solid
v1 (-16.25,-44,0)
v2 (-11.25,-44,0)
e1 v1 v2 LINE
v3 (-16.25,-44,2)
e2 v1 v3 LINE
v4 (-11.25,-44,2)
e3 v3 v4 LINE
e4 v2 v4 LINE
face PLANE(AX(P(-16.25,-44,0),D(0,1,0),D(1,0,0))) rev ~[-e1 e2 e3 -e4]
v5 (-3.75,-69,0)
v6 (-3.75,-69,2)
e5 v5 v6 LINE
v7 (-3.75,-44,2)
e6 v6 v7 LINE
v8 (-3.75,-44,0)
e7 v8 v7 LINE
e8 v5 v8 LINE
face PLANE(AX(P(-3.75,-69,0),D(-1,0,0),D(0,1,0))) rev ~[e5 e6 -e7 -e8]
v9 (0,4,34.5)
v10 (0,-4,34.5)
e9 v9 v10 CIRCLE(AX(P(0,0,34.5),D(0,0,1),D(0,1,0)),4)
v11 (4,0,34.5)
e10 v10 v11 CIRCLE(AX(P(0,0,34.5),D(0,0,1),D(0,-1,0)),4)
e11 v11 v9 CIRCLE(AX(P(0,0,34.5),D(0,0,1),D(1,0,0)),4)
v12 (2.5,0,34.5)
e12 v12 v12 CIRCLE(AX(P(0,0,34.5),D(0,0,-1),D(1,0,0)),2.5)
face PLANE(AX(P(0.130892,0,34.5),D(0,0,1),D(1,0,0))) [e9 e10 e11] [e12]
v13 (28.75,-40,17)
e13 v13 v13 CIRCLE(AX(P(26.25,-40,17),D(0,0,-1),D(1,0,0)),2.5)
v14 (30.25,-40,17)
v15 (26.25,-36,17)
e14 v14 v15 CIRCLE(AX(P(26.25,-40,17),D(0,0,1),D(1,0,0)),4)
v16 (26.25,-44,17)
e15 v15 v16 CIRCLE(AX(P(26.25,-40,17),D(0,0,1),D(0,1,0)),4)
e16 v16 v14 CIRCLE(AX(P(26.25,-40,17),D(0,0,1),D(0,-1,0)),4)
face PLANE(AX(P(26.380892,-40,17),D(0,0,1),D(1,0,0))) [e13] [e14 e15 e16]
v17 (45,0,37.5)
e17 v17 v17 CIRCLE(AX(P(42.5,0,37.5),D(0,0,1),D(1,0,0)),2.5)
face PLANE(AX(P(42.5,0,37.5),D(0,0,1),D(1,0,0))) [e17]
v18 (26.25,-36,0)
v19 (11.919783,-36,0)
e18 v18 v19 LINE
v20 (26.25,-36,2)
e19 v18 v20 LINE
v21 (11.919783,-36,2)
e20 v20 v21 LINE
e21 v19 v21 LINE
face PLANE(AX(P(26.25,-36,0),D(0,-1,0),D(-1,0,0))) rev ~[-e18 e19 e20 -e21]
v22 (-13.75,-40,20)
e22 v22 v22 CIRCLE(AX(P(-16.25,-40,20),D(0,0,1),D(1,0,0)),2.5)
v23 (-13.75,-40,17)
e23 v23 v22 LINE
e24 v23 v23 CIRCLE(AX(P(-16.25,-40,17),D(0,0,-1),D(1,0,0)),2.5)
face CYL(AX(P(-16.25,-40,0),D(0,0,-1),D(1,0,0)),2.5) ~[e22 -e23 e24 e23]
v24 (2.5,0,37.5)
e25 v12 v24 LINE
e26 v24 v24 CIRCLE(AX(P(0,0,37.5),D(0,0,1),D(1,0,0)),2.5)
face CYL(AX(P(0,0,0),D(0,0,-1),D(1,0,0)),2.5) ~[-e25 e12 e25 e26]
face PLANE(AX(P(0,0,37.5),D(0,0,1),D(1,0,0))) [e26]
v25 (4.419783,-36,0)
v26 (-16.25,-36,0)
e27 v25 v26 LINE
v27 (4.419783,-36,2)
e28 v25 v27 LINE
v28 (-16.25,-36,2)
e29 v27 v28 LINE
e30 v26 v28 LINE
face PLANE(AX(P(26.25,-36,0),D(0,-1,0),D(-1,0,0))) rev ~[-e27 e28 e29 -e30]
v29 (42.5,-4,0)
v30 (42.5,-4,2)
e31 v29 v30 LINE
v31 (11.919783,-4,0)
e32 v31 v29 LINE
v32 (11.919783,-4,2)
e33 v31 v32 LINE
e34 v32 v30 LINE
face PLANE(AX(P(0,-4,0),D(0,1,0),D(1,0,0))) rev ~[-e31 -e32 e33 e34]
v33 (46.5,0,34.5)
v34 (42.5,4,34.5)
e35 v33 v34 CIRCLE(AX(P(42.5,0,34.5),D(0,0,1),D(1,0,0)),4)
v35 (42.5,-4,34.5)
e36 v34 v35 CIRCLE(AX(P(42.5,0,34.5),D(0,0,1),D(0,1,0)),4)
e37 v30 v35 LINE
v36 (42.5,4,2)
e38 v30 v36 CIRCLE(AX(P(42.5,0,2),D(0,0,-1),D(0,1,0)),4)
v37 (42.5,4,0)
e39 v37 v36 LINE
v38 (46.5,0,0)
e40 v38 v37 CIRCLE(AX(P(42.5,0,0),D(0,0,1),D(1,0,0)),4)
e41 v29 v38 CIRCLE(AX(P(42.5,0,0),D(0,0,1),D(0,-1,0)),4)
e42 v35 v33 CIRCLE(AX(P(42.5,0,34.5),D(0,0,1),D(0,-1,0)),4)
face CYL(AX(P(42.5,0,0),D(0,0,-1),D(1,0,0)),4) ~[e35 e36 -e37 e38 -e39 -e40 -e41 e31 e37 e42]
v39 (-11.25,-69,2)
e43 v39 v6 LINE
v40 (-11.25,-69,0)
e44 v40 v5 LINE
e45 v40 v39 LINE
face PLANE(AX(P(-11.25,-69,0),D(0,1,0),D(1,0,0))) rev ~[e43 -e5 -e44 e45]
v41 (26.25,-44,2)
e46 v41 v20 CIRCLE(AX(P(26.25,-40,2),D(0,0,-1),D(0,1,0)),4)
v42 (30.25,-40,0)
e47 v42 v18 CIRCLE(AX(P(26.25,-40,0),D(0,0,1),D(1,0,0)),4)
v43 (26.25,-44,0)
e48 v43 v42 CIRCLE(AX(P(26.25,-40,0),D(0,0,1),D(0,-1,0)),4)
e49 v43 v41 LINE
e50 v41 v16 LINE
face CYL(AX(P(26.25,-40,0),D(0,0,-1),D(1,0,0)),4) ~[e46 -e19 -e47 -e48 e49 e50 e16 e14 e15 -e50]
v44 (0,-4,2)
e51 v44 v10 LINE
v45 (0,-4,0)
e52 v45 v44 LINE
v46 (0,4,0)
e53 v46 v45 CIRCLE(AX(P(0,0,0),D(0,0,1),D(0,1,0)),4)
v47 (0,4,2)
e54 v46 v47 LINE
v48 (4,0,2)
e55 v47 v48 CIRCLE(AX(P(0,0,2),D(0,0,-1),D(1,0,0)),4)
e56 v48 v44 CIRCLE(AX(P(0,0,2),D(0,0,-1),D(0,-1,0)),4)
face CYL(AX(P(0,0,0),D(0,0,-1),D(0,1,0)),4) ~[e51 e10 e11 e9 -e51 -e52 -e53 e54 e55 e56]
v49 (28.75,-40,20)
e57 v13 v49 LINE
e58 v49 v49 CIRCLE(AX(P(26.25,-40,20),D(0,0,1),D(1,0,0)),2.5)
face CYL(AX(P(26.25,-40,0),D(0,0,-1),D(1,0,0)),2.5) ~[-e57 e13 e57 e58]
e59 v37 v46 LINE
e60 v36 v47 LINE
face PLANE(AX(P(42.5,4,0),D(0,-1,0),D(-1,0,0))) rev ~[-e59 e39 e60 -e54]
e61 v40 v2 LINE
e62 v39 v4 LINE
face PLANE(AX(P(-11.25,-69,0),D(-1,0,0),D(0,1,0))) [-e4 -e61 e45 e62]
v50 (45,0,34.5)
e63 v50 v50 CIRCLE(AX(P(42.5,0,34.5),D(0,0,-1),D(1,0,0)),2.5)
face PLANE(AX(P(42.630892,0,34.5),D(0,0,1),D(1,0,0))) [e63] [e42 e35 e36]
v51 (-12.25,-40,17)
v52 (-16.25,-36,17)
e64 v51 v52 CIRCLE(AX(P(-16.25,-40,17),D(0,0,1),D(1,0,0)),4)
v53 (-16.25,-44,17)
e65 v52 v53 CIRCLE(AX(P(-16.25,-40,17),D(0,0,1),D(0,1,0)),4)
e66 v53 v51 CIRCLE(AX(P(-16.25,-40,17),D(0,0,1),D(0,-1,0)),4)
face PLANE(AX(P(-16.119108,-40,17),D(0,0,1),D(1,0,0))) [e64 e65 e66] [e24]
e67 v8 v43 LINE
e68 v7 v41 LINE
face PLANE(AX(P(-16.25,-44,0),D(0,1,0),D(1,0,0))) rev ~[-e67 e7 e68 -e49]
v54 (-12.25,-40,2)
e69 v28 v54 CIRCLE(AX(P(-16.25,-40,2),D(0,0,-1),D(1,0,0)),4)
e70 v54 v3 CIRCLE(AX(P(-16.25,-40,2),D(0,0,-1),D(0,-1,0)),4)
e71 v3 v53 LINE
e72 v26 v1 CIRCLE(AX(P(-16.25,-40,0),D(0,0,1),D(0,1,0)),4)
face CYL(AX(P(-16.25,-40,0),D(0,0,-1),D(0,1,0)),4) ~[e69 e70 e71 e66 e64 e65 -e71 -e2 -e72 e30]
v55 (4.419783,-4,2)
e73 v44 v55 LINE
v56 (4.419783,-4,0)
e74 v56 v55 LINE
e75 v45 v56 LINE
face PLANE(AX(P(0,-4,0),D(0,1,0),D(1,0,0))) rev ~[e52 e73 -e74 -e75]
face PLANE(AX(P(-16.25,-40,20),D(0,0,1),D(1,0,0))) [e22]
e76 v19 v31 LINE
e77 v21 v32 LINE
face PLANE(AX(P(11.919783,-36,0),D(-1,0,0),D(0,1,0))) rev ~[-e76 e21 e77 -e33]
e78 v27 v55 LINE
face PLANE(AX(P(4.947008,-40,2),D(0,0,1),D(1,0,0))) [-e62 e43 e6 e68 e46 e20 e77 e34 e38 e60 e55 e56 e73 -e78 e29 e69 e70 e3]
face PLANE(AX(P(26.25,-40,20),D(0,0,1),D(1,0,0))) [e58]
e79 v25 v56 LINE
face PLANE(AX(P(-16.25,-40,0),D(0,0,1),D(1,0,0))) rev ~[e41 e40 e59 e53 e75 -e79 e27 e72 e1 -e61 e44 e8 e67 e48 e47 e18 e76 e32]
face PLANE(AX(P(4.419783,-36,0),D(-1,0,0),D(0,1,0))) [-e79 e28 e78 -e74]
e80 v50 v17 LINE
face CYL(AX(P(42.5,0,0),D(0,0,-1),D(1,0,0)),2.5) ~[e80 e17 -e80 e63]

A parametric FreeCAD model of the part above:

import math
import FreeCAD as App
import Part
import Sketcher
from FreeCAD import Vector
Q = App.Units.Quantity


def add_polygon(sketch, points):
    """Adds a closed chain of lines whose ends are joined by coincident constraints."""
    first, n = sketch.GeometryCount, len(points)
    for a, b in zip(points, points[1:] + points[:1]):
        sketch.addGeometry(Part.LineSegment(App.Vector(*a, 0), App.Vector(*b, 0)), False)
    for i in range(n):
        sketch.addConstraint(Sketcher.Constraint("Coincident", first + i, 2, first + (i + 1) % n, 1))

doc = App.newDocument("Part")
params = doc.addObject("Spreadsheet::Sheet", "Params")
for row, (alias, value) in enumerate([
    ("sketch1_radius", "4 mm"),
    ("sketch1_width", "42.5 mm"),
    ("pad1_length", "2 mm"),
    ("sketch2_radius", "4 mm"),
    ("pad2_length", "34.5 mm"),
    ("sketch3_diameter", "5 mm"),
    ("pad3_length", "37.5 mm"),
    ("sketch4_radius", "4 mm"),
    ("sketch4_width", "42.5 mm"),
    ("pad4_length", "2 mm"),
    ("sketch5_radius", "4 mm"),
    ("pad5_length", "17 mm"),
    ("sketch6_diameter", "5 mm"),
    ("pad6_length", "20 mm"),
    ("sketch7_height", "32 mm"),
    ("sketch7_height2", "25 mm"),
    ("sketch7_width", "7.5 mm"),
    ("pad7_length", "2 mm"),
], start=1):
    params.set(f"A{row}", alias)
    params.set(f"B{row}", "=" + value)
    params.setAlias(f"B{row}", alias)

body = doc.addObject("PartDesign::Body", "Body")

# Sketch on XY plane
sketch1 = body.newObject("Sketcher::SketchObject", "Sketch")
sketch1.AttachmentSupport = (doc.getObject("XY_Plane"), [""])
sketch1.MapMode = "FlatFace"
sketch1.addGeometry(Part.LineSegment(Vector(0, -4, 0), Vector(42.5, -4, 0)), False)
sketch1.addGeometry(Part.ArcOfCircle(Part.Circle(Vector(42.5, 0, 0), Vector(0, 0, 1), 4), math.radians(-90), math.radians(0)), False)
sketch1.addGeometry(Part.ArcOfCircle(Part.Circle(Vector(42.5, 0, 0), Vector(0, 0, 1), 4), math.radians(0), math.radians(90)), False)
sketch1.addGeometry(Part.LineSegment(Vector(42.5, 4, 0), Vector(0, 4, 0)), False)
sketch1.addGeometry(Part.ArcOfCircle(Part.Circle(Vector(0, 0, 0), Vector(0, 0, 1), 4), math.radians(90), math.radians(270)), False)
sketch1.addConstraint(Sketcher.Constraint("Tangent", 0, 2, 1, 1))
sketch1.addConstraint(Sketcher.Constraint("Tangent", 1, 2, 2, 1))
sketch1.addConstraint(Sketcher.Constraint("Tangent", 2, 2, 3, 1))
sketch1.addConstraint(Sketcher.Constraint("Tangent", 3, 2, 4, 1))
sketch1.addConstraint(Sketcher.Constraint("Tangent", 4, 2, 0, 1))
sketch1.addConstraint(Sketcher.Constraint("Horizontal", 0))
sketch1.addConstraint(Sketcher.Constraint("Horizontal", 3))
sketch1.addConstraint(Sketcher.Constraint("Coincident", 4, 3, -1, 1))
sketch1.addConstraint(Sketcher.Constraint("Equal", 1, 2))
sketch1.addConstraint(Sketcher.Constraint("PointOnObject", 1, 2, -1))
sketch1.addConstraint(Sketcher.Constraint("Radius", 1, Q("4 mm")))
sketch1.addConstraint(Sketcher.Constraint("DistanceX", 0, 1, 0, 2, Q("42.5 mm")))
sketch1.setExpression("Constraints[10]", "Params.sketch1_radius")
sketch1.setExpression("Constraints[11]", "Params.sketch1_width")
pad1 = body.newObject("PartDesign::Pad", "Pad")
pad1.Profile = sketch1
pad1.setExpression("Length", "Params.pad1_length")

# Sketch on XY plane
sketch2 = body.newObject("Sketcher::SketchObject", "Sketch001")
sketch2.AttachmentSupport = (doc.getObject("XY_Plane"), [""])
sketch2.MapMode = "FlatFace"
sketch2.addGeometry(Part.ArcOfCircle(Part.Circle(Vector(0, 0, 0), Vector(0, 0, 1), 4), math.radians(-90), math.radians(0)), False)
sketch2.addGeometry(Part.ArcOfCircle(Part.Circle(Vector(0, 0, 0), Vector(0, 0, 1), 4), math.radians(0), math.radians(90)), False)
sketch2.addGeometry(Part.ArcOfCircle(Part.Circle(Vector(0, 0, 0), Vector(0, 0, 1), 4), math.radians(90), math.radians(270)), False)
sketch2.addGeometry(Part.ArcOfCircle(Part.Circle(Vector(42.5, 0, 0), Vector(0, 0, 1), 4), math.radians(0), math.radians(90)), False)
sketch2.addGeometry(Part.ArcOfCircle(Part.Circle(Vector(42.5, 0, 0), Vector(0, 0, 1), 4), math.radians(90), math.radians(270)), False)
sketch2.addGeometry(Part.ArcOfCircle(Part.Circle(Vector(42.5, 0, 0), Vector(0, 0, 1), 4), math.radians(-90), math.radians(0)), False)
sketch2.addConstraint(Sketcher.Constraint("Tangent", 0, 2, 1, 1))
sketch2.addConstraint(Sketcher.Constraint("Tangent", 1, 2, 2, 1))
sketch2.addConstraint(Sketcher.Constraint("Tangent", 2, 2, 0, 1))
sketch2.addConstraint(Sketcher.Constraint("Tangent", 3, 2, 4, 1))
sketch2.addConstraint(Sketcher.Constraint("Tangent", 4, 2, 5, 1))
sketch2.addConstraint(Sketcher.Constraint("Tangent", 5, 2, 3, 1))
sketch2.addConstraint(Sketcher.Constraint("Coincident", 0, 3, -1, 1))
sketch2.addConstraint(Sketcher.Constraint("Equal", 2, 3))
sketch2.addConstraint(Sketcher.Constraint("Symmetric", 3, 2, 4, 2, -1))
sketch2.addConstraint(Sketcher.Constraint("PointOnObject", 0, 2, -1))
sketch2.addConstraint(Sketcher.Constraint("PointOnObject", 1, 2, -2))
sketch2.addConstraint(Sketcher.Constraint("PointOnObject", 2, 2, -2))
sketch2.addConstraint(Sketcher.Constraint("PointOnObject", 5, 2, -1))
sketch2.addConstraint(Sketcher.Constraint("Vertical", 5, 3, 3, 2))
sketch2.addConstraint(Sketcher.Constraint("Radius", 0, Q("4 mm")))
sketch2.addConstraint(Sketcher.Constraint("DistanceX", -1, 1, 3, 3, Q("42.5 mm")))
sketch2.setExpression("Constraints[14]", "Params.sketch2_radius")
pad2 = body.newObject("PartDesign::Pad", "Pad001")
pad2.Profile = sketch2
pad2.setExpression("Length", "Params.pad2_length")

# Sketch on XY plane
sketch3 = body.newObject("Sketcher::SketchObject", "Sketch002")
sketch3.AttachmentSupport = (doc.getObject("XY_Plane"), [""])
sketch3.MapMode = "FlatFace"
sketch3.addGeometry(Part.Circle(Vector(0, 0, 0), Vector(0, 0, 1), 2.5), False)
sketch3.addGeometry(Part.Circle(Vector(42.5, 0, 0), Vector(0, 0, 1), 2.5), False)
sketch3.addConstraint(Sketcher.Constraint("Coincident", 0, 3, -1, 1))
sketch3.addConstraint(Sketcher.Constraint("Equal", 0, 1))
sketch3.addConstraint(Sketcher.Constraint("PointOnObject", 1, 3, -1))
sketch3.addConstraint(Sketcher.Constraint("Diameter", 0, Q("5 mm")))
sketch3.addConstraint(Sketcher.Constraint("DistanceX", -1, 1, 1, 3, Q("42.5 mm")))
sketch3.setExpression("Constraints[3]", "Params.sketch3_diameter")
pad3 = body.newObject("PartDesign::Pad", "Pad002")
pad3.Profile = sketch3
pad3.setExpression("Length", "Params.pad3_length")
body2 = doc.addObject("PartDesign::Body", "Body001")

# Sketch on XY plane
sketch4 = body2.newObject("Sketcher::SketchObject", "Sketch003")
sketch4.AttachmentSupport = (doc.getObject("XY_Plane001"), [""])
sketch4.MapMode = "FlatFace"
sketch4.addGeometry(Part.LineSegment(Vector(42.5, -36, 0), Vector(0, -36, 0)), False)
sketch4.addGeometry(Part.ArcOfCircle(Part.Circle(Vector(0, -40, 0), Vector(0, 0, 1), 4), math.radians(90), math.radians(270)), False)
sketch4.addGeometry(Part.LineSegment(Vector(0, -44, 0), Vector(42.5, -44, 0)), False)
sketch4.addGeometry(Part.ArcOfCircle(Part.Circle(Vector(42.5, -40, 0), Vector(0, 0, 1), 4), math.radians(-90), math.radians(0)), False)
sketch4.addGeometry(Part.ArcOfCircle(Part.Circle(Vector(42.5, -40, 0), Vector(0, 0, 1), 4), math.radians(0), math.radians(90)), False)
sketch4.addConstraint(Sketcher.Constraint("Tangent", 0, 2, 1, 1))
sketch4.addConstraint(Sketcher.Constraint("Tangent", 1, 2, 2, 1))
sketch4.addConstraint(Sketcher.Constraint("Tangent", 2, 2, 3, 1))
sketch4.addConstraint(Sketcher.Constraint("Tangent", 3, 2, 4, 1))
sketch4.addConstraint(Sketcher.Constraint("Tangent", 4, 2, 0, 1))
sketch4.addConstraint(Sketcher.Constraint("Horizontal", 0))
sketch4.addConstraint(Sketcher.Constraint("Horizontal", 2))
sketch4.addConstraint(Sketcher.Constraint("Equal", 1, 3))
sketch4.addConstraint(Sketcher.Constraint("PointOnObject", 1, 3, -2))
sketch4.addConstraint(Sketcher.Constraint("Horizontal", 4, 3, 3, 2))
sketch4.addConstraint(Sketcher.Constraint("Radius", 1, Q("4 mm")))
sketch4.addConstraint(Sketcher.Constraint("DistanceX", 0, 2, 0, 1, Q("42.5 mm")))
sketch4.addConstraint(Sketcher.Constraint("DistanceY", 1, 3, -1, 1, Q("40 mm")))
sketch4.setExpression("Constraints[10]", "Params.sketch4_radius")
sketch4.setExpression("Constraints[11]", "Params.sketch4_width")
pad4 = body2.newObject("PartDesign::Pad", "Pad003")
pad4.Profile = sketch4
pad4.setExpression("Length", "Params.pad4_length")

# Sketch on XY plane
sketch5 = body2.newObject("Sketcher::SketchObject", "Sketch004")
sketch5.AttachmentSupport = (doc.getObject("XY_Plane001"), [""])
sketch5.MapMode = "FlatFace"
sketch5.addGeometry(Part.ArcOfCircle(Part.Circle(Vector(0, -40, 0), Vector(0, 0, 1), 4), math.radians(-90), math.radians(0)), False)
sketch5.addGeometry(Part.ArcOfCircle(Part.Circle(Vector(0, -40, 0), Vector(0, 0, 1), 4), math.radians(0), math.radians(90)), False)
sketch5.addGeometry(Part.ArcOfCircle(Part.Circle(Vector(0, -40, 0), Vector(0, 0, 1), 4), math.radians(90), math.radians(270)), False)
sketch5.addGeometry(Part.ArcOfCircle(Part.Circle(Vector(42.5, -40, 0), Vector(0, 0, 1), 4), math.radians(0), math.radians(90)), False)
sketch5.addGeometry(Part.ArcOfCircle(Part.Circle(Vector(42.5, -40, 0), Vector(0, 0, 1), 4), math.radians(90), math.radians(270)), False)
sketch5.addGeometry(Part.ArcOfCircle(Part.Circle(Vector(42.5, -40, 0), Vector(0, 0, 1), 4), math.radians(-90), math.radians(0)), False)
sketch5.addConstraint(Sketcher.Constraint("Tangent", 0, 2, 1, 1))
sketch5.addConstraint(Sketcher.Constraint("Tangent", 1, 2, 2, 1))
sketch5.addConstraint(Sketcher.Constraint("Tangent", 2, 2, 0, 1))
sketch5.addConstraint(Sketcher.Constraint("Tangent", 3, 2, 4, 1))
sketch5.addConstraint(Sketcher.Constraint("Tangent", 4, 2, 5, 1))
sketch5.addConstraint(Sketcher.Constraint("Tangent", 5, 2, 3, 1))
sketch5.addConstraint(Sketcher.Constraint("Equal", 2, 3))
sketch5.addConstraint(Sketcher.Constraint("PointOnObject", 0, 3, -2))
sketch5.addConstraint(Sketcher.Constraint("PointOnObject", 1, 2, -2))
sketch5.addConstraint(Sketcher.Constraint("PointOnObject", 2, 2, -2))
sketch5.addConstraint(Sketcher.Constraint("Horizontal", 2, 3, 3, 3))
sketch5.addConstraint(Sketcher.Constraint("Horizontal", 5, 3, 0, 2))
sketch5.addConstraint(Sketcher.Constraint("Horizontal", 0, 2, 5, 2))
sketch5.addConstraint(Sketcher.Constraint("Vertical", 5, 3, 3, 2))
sketch5.addConstraint(Sketcher.Constraint("Vertical", 3, 2, 4, 2))
sketch5.addConstraint(Sketcher.Constraint("Radius", 0, Q("4 mm")))
sketch5.addConstraint(Sketcher.Constraint("DistanceY", 0, 3, -1, 1, Q("40 mm")))
sketch5.addConstraint(Sketcher.Constraint("DistanceX", -1, 1, 3, 3, Q("42.5 mm")))
sketch5.setExpression("Constraints[15]", "Params.sketch5_radius")
pad5 = body2.newObject("PartDesign::Pad", "Pad004")
pad5.Profile = sketch5
pad5.setExpression("Length", "Params.pad5_length")

# Sketch on XY plane
sketch6 = body2.newObject("Sketcher::SketchObject", "Sketch005")
sketch6.AttachmentSupport = (doc.getObject("XY_Plane001"), [""])
sketch6.MapMode = "FlatFace"
sketch6.addGeometry(Part.Circle(Vector(0, -40, 0), Vector(0, 0, 1), 2.5), False)
sketch6.addGeometry(Part.Circle(Vector(42.5, -40, 0), Vector(0, 0, 1), 2.5), False)
sketch6.addConstraint(Sketcher.Constraint("Equal", 0, 1))
sketch6.addConstraint(Sketcher.Constraint("PointOnObject", 0, 3, -2))
sketch6.addConstraint(Sketcher.Constraint("Horizontal", 0, 3, 1, 3))
sketch6.addConstraint(Sketcher.Constraint("Diameter", 0, Q("5 mm")))
sketch6.addConstraint(Sketcher.Constraint("DistanceY", 0, 3, -1, 1, Q("40 mm")))
sketch6.addConstraint(Sketcher.Constraint("DistanceX", -1, 1, 1, 3, Q("42.5 mm")))
sketch6.setExpression("Constraints[3]", "Params.sketch6_diameter")
pad6 = body2.newObject("PartDesign::Pad", "Pad005")
pad6.Profile = sketch6
pad6.setExpression("Length", "Params.pad6_length")
body3 = doc.addObject("PartDesign::Body", "Body002")
doc.recompute()

body2.Placement = App.Placement(Vector(-16.25, 0, 0), App.Rotation(Vector(0, 0, 1), 0))
boolean = body3.newObject("PartDesign::Boolean", "Boolean")
boolean.Type = "Fuse"
boolean.addObjects([body2])
body.AllowCompound = True
doc.recompute()

boolean2 = body.newObject("PartDesign::Boolean", "Boolean001")
boolean2.Type = "Fuse"
boolean2.addObjects([body3])

# Sketch on XY plane
sketch7 = body.newObject("Sketcher::SketchObject", "Sketch006")
sketch7.AttachmentSupport = (doc.getObject("XY_Plane"), [""])
sketch7.MapMode = "FlatFace"
add_polygon(sketch7, [(4, -4), (4, -36), (12, -36), (12, -4)])  # lines 0-3
add_polygon(sketch7, [(-11, -44), (-11, -69), (-4, -69), (-4, -44)])  # lines 4-7
sketch7.addConstraint(Sketcher.Constraint("Vertical", 0))
sketch7.addConstraint(Sketcher.Constraint("Horizontal", 1))
sketch7.addConstraint(Sketcher.Constraint("Vertical", 2))
sketch7.addConstraint(Sketcher.Constraint("Horizontal", 3))
sketch7.addConstraint(Sketcher.Constraint("Vertical", 4))
sketch7.addConstraint(Sketcher.Constraint("Horizontal", 5))
sketch7.addConstraint(Sketcher.Constraint("Vertical", 6))
sketch7.addConstraint(Sketcher.Constraint("Horizontal", 7))
sketch7.addConstraint(Sketcher.Constraint("Equal", 3, 5))
sketch7.addConstraint(Sketcher.Constraint("DistanceY", 0, 2, 0, 1, Q("32 mm")))
sketch7.addConstraint(Sketcher.Constraint("DistanceY", 4, 2, 4, 1, Q("25 mm")))
sketch7.addConstraint(Sketcher.Constraint("DistanceX", 1, 1, 1, 2, Q("7.5 mm")))
sketch7.addConstraint(Sketcher.Constraint("DistanceY", 0, 2, -1, 1, Q("36 mm")))
sketch7.addConstraint(Sketcher.Constraint("DistanceY", 4, 2, -1, 1, Q("69 mm")))
sketch7.addConstraint(Sketcher.Constraint("DistanceX", 4, 2, -1, 1, Q("11.25 mm")))
sketch7.addConstraint(Sketcher.Constraint("DistanceX", -1, 1, 0, 2, Q("4.419783 mm")))
sketch7.setExpression("Constraints[17]", "Params.sketch7_height")
sketch7.setExpression("Constraints[18]", "Params.sketch7_height2")
sketch7.setExpression("Constraints[19]", "Params.sketch7_width")
pad7 = body.newObject("PartDesign::Pad", "Pad006")
pad7.Profile = sketch7
pad7.setExpression("Length", "Params.pad7_length")

doc.recompute()
